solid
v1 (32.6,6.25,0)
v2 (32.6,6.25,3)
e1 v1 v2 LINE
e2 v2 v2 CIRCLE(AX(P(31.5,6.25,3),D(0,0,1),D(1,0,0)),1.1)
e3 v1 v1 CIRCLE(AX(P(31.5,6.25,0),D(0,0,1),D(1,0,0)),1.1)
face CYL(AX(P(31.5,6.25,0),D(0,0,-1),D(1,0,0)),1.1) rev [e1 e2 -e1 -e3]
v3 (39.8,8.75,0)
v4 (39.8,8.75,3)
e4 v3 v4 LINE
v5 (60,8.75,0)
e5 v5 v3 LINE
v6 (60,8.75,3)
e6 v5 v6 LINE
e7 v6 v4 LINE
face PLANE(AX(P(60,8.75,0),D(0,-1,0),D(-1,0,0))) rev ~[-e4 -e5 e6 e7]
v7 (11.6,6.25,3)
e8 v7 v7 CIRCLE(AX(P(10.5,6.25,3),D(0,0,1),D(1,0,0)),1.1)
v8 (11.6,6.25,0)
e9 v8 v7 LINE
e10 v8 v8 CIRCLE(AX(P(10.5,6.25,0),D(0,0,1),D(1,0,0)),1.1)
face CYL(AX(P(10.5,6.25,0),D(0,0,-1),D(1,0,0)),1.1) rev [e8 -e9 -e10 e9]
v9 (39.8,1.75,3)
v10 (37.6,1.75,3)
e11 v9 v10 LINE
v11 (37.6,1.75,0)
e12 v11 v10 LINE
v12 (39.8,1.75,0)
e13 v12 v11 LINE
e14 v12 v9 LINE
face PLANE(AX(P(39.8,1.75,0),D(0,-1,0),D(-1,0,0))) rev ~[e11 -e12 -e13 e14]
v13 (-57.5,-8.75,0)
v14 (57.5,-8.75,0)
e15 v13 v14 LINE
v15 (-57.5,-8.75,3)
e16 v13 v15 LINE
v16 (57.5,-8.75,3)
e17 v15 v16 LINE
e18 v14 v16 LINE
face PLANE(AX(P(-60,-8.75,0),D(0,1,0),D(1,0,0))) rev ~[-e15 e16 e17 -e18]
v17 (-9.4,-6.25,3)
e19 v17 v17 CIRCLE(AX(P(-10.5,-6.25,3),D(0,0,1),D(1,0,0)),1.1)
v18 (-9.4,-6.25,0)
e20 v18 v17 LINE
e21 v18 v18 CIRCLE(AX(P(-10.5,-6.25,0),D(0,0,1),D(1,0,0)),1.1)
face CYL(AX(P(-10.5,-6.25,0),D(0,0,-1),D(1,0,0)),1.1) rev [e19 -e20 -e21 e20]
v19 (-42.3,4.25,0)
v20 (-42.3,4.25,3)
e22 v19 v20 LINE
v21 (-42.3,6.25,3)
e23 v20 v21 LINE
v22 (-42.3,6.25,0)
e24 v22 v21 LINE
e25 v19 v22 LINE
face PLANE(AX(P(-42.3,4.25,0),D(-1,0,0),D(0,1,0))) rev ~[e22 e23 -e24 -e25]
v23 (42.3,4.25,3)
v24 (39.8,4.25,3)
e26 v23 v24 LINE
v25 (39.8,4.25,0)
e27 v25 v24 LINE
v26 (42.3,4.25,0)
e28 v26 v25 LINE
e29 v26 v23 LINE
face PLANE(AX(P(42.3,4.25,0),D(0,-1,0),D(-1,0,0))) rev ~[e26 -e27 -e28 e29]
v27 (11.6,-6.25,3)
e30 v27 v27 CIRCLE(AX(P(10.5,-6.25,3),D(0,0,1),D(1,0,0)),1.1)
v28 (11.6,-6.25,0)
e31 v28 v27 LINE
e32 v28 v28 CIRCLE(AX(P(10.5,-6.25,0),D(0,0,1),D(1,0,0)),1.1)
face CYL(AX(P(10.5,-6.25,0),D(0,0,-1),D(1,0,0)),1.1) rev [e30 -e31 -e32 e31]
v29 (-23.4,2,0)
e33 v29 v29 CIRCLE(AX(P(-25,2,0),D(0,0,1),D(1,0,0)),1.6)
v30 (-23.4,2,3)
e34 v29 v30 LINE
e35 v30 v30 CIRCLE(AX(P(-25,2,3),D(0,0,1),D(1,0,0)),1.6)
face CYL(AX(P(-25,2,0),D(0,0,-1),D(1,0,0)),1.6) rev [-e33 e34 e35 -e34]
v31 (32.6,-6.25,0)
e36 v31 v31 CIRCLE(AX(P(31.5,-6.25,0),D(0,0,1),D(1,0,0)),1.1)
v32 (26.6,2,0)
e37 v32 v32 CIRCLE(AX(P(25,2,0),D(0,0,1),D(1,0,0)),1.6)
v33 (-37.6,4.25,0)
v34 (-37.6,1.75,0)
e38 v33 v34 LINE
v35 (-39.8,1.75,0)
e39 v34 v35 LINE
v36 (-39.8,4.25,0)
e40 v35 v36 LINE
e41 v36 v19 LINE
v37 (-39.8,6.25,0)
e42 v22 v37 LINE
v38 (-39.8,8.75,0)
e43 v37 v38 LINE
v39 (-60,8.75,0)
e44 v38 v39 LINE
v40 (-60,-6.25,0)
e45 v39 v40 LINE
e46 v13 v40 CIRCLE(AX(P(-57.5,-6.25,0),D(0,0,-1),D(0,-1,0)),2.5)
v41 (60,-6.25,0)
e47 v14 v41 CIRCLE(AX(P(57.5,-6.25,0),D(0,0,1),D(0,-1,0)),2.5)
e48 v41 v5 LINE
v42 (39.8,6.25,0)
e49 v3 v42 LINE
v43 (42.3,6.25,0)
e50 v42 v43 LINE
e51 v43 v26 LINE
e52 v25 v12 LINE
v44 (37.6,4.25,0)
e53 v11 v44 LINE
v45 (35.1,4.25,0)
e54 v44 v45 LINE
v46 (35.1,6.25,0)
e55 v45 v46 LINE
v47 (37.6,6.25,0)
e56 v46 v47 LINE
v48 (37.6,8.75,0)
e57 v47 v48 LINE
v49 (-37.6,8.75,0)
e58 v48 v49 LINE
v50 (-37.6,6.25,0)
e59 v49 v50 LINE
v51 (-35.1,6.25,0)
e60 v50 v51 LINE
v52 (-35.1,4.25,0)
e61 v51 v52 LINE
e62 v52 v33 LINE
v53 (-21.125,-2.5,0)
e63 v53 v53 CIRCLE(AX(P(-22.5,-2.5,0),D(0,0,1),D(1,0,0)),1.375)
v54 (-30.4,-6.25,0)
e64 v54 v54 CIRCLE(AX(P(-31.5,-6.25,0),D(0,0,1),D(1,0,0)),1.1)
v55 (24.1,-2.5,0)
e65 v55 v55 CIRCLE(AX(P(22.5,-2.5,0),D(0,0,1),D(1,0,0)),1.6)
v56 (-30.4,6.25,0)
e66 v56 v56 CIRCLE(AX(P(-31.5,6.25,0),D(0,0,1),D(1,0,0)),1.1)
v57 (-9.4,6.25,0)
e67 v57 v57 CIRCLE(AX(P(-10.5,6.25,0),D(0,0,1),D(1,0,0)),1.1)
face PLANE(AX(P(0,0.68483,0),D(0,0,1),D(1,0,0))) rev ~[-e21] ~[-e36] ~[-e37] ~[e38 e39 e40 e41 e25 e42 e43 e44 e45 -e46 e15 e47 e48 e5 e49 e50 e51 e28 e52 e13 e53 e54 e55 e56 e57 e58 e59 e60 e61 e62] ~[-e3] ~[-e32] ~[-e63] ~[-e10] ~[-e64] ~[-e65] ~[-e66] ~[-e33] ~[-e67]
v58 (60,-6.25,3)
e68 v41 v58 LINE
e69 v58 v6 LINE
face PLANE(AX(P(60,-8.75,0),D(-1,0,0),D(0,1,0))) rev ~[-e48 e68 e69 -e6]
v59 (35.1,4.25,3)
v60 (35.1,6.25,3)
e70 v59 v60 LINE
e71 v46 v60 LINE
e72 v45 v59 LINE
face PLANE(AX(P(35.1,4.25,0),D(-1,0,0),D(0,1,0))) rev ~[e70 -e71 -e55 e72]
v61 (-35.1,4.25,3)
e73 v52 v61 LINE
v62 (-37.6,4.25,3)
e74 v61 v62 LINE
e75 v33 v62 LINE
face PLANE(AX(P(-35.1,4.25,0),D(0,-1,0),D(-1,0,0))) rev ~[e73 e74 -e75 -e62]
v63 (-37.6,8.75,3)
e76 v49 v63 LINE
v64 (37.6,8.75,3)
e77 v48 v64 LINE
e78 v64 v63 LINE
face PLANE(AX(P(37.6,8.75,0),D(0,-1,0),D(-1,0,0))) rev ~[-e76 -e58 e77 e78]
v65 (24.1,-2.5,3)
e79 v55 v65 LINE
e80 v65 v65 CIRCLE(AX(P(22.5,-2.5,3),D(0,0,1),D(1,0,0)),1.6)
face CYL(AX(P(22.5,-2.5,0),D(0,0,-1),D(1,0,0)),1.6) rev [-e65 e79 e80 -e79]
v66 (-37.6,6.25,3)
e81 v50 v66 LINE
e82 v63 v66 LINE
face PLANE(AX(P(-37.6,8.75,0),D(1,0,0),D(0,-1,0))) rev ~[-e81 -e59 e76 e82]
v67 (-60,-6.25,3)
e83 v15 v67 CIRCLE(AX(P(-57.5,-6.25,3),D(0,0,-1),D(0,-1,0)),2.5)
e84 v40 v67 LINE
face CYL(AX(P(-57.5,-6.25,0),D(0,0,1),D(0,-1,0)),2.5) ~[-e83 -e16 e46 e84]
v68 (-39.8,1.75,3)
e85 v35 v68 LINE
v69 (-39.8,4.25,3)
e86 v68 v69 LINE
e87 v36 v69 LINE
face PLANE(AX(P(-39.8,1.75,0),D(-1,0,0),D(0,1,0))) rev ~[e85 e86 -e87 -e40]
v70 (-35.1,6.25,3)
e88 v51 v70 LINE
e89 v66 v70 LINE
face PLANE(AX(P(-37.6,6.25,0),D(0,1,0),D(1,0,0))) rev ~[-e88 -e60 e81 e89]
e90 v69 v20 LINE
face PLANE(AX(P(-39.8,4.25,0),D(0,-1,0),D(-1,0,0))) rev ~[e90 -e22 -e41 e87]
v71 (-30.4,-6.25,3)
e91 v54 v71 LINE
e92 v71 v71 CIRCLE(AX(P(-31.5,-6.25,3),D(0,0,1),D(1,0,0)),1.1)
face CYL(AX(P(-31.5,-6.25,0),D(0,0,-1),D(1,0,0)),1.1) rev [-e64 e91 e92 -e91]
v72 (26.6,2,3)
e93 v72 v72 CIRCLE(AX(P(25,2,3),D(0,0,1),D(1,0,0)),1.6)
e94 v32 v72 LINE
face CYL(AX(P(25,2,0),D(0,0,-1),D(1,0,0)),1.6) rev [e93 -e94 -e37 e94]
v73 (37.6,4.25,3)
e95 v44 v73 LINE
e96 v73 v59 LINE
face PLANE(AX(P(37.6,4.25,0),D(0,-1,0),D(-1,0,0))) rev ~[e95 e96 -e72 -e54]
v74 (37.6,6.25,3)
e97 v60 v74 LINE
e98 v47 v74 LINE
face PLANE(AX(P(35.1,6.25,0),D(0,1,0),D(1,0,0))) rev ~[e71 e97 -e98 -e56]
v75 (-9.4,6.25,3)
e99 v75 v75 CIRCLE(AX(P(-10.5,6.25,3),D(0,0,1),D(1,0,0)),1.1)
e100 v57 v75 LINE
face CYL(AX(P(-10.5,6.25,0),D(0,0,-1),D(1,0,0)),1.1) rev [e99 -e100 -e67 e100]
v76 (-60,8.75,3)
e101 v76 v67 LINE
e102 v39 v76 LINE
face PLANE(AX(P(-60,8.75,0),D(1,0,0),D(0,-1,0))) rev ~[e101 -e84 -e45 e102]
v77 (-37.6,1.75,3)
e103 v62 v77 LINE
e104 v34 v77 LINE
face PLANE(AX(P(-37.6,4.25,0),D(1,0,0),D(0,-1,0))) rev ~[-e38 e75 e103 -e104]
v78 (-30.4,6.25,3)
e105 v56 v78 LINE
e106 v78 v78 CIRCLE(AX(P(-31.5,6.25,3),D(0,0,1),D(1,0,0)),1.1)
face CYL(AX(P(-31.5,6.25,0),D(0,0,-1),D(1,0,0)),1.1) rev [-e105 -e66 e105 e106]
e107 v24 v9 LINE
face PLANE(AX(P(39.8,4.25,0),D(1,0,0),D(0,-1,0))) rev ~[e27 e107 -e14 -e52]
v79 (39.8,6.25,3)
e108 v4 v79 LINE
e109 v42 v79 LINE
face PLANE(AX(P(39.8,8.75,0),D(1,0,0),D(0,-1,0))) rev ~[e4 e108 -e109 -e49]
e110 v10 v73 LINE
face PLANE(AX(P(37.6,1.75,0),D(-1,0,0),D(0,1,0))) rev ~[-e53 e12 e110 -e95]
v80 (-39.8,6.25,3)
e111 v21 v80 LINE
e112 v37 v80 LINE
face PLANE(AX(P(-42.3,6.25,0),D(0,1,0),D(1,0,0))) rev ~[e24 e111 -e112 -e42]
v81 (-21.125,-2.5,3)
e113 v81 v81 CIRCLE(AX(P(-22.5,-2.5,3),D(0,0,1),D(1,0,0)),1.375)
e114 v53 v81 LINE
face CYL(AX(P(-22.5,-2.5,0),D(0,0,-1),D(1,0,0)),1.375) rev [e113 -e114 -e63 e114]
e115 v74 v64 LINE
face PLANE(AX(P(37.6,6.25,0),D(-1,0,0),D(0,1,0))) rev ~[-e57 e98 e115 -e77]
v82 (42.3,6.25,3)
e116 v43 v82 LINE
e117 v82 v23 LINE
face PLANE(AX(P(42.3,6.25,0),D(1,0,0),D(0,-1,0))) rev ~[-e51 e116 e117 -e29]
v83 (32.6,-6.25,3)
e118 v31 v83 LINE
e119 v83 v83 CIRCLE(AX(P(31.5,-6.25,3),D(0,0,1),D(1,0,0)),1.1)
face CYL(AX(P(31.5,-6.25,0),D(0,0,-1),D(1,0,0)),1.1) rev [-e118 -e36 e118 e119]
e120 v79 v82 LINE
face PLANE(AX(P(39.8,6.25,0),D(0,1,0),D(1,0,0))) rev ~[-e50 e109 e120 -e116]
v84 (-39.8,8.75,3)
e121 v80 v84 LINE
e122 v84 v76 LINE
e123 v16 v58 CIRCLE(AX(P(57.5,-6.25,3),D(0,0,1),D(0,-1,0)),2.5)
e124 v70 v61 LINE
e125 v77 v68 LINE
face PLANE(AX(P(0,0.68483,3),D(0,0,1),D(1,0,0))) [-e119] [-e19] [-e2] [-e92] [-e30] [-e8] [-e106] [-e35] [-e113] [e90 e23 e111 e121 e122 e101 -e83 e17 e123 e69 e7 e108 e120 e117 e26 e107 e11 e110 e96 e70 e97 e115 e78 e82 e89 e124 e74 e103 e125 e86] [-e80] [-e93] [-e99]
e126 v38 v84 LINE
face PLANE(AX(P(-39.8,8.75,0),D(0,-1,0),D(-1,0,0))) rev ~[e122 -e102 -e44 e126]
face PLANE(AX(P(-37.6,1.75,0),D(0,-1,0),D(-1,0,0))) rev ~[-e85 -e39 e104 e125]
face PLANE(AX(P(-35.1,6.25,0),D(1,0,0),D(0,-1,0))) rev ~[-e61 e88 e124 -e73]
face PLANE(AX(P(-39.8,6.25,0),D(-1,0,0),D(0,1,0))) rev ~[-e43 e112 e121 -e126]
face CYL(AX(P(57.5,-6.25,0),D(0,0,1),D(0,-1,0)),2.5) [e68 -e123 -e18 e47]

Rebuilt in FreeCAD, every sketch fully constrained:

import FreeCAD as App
import Part
import Sketcher
from FreeCAD import Vector
Q = App.Units.Quantity


def edges_at(feature, points):
    """Names of the edges that pass closest to the given points."""
    edges = feature.Shape.Edges
    near = lambda p: min(range(len(edges)), key=lambda i: edges[i].distToShape(Part.Vertex(*p))[0])
    return sorted({f"Edge{near(p) + 1}" for p in points})

doc = App.newDocument("Part")
body = doc.addObject("PartDesign::Body", "Body")

sketch1 = doc.addObject("Sketcher::SketchObject", "Sketch")
body.addObject(sketch1)
sketch1.AttachmentSupport = (doc.XY_Plane, [""])
sketch1.MapMode = "FlatFace"
sketch1.addGeometry([
    Part.LineSegment(Vector(-60, -8.75, 0), Vector(60, -8.75, 0)),
    Part.LineSegment(Vector(60, -8.75, 0), Vector(60, 8.75, 0)),
    Part.LineSegment(Vector(60, 8.75, 0), Vector(39.8, 8.75, 0)),
    Part.LineSegment(Vector(39.8, 8.75, 0), Vector(39.8, 6.25, 0)),
    Part.LineSegment(Vector(39.8, 6.25, 0), Vector(42.3, 6.25, 0)),
    Part.LineSegment(Vector(42.3, 6.25, 0), Vector(42.3, 4.25, 0)),
    Part.LineSegment(Vector(42.3, 4.25, 0), Vector(39.8, 4.25, 0)),
    Part.LineSegment(Vector(39.8, 4.25, 0), Vector(39.8, 1.75, 0)),
    Part.LineSegment(Vector(39.8, 1.75, 0), Vector(37.6, 1.75, 0)),
    Part.LineSegment(Vector(37.6, 1.75, 0), Vector(37.6, 4.25, 0)),
    Part.LineSegment(Vector(37.6, 4.25, 0), Vector(35.1, 4.25, 0)),
    Part.LineSegment(Vector(35.1, 4.25, 0), Vector(35.1, 6.25, 0)),
    Part.LineSegment(Vector(35.1, 6.25, 0), Vector(37.6, 6.25, 0)),
    Part.LineSegment(Vector(37.6, 6.25, 0), Vector(37.6, 8.75, 0)),
    Part.LineSegment(Vector(37.6, 8.75, 0), Vector(-37.6, 8.75, 0)),
    Part.LineSegment(Vector(-37.6, 8.75, 0), Vector(-37.6, 6.25, 0)),
    Part.LineSegment(Vector(-37.6, 6.25, 0), Vector(-35.1, 6.25, 0)),
    Part.LineSegment(Vector(-35.1, 6.25, 0), Vector(-35.1, 4.25, 0)),
    Part.LineSegment(Vector(-35.1, 4.25, 0), Vector(-37.6, 4.25, 0)),
    Part.LineSegment(Vector(-37.6, 4.25, 0), Vector(-37.6, 1.75, 0)),
    Part.LineSegment(Vector(-37.6, 1.75, 0), Vector(-39.8, 1.75, 0)),
    Part.LineSegment(Vector(-39.8, 1.75, 0), Vector(-39.8, 4.25, 0)),
    Part.LineSegment(Vector(-39.8, 4.25, 0), Vector(-42.3, 4.25, 0)),
    Part.LineSegment(Vector(-42.3, 4.25, 0), Vector(-42.3, 6.25, 0)),
    Part.LineSegment(Vector(-42.3, 6.25, 0), Vector(-39.8, 6.25, 0)),
    Part.LineSegment(Vector(-39.8, 6.25, 0), Vector(-39.8, 8.75, 0)),
    Part.LineSegment(Vector(-39.8, 8.75, 0), Vector(-60, 8.75, 0)),
    Part.LineSegment(Vector(-60, 8.75, 0), Vector(-60, -8.75, 0)),
    Part.Circle(Vector(-31.5, -6.25, 0), Vector(0, 0, 1), 1.1),
    Part.Circle(Vector(-10.5, -6.25, 0), Vector(0, 0, 1), 1.1),
    Part.Circle(Vector(-22.5, -2.5, 0), Vector(0, 0, 1), 1.375),
    Part.Circle(Vector(10.5, -6.25, 0), Vector(0, 0, 1), 1.1),
    Part.Circle(Vector(31.5, -6.25, 0), Vector(0, 0, 1), 1.1),
    Part.Circle(Vector(22.5, -2.5, 0), Vector(0, 0, 1), 1.6),
    Part.Circle(Vector(-25, 2, 0), Vector(0, 0, 1), 1.6),
    Part.Circle(Vector(-31.5, 6.25, 0), Vector(0, 0, 1), 1.1),
    Part.Circle(Vector(-10.5, 6.25, 0), Vector(0, 0, 1), 1.1),
    Part.Circle(Vector(25, 2, 0), Vector(0, 0, 1), 1.6),
    Part.Circle(Vector(10.5, 6.25, 0), Vector(0, 0, 1), 1.1),
    Part.Circle(Vector(31.5, 6.25, 0), Vector(0, 0, 1), 1.1),
], False)
sketch1.addConstraint([
    Sketcher.Constraint("Coincident", 0, 2, 1, 1),
    Sketcher.Constraint("Coincident", 1, 2, 2, 1),
    Sketcher.Constraint("Coincident", 2, 2, 3, 1),
    Sketcher.Constraint("Coincident", 3, 2, 4, 1),
    Sketcher.Constraint("Coincident", 4, 2, 5, 1),
    Sketcher.Constraint("Coincident", 5, 2, 6, 1),
    Sketcher.Constraint("Coincident", 6, 2, 7, 1),
    Sketcher.Constraint("Coincident", 7, 2, 8, 1),
    Sketcher.Constraint("Coincident", 8, 2, 9, 1),
    Sketcher.Constraint("Coincident", 9, 2, 10, 1),
    Sketcher.Constraint("Coincident", 10, 2, 11, 1),
    Sketcher.Constraint("Coincident", 11, 2, 12, 1),
    Sketcher.Constraint("Coincident", 12, 2, 13, 1),
    Sketcher.Constraint("Coincident", 13, 2, 14, 1),
    Sketcher.Constraint("Coincident", 14, 2, 15, 1),
    Sketcher.Constraint("Coincident", 15, 2, 16, 1),
    Sketcher.Constraint("Coincident", 16, 2, 17, 1),
    Sketcher.Constraint("Coincident", 17, 2, 18, 1),
    Sketcher.Constraint("Coincident", 18, 2, 19, 1),
    Sketcher.Constraint("Coincident", 19, 2, 20, 1),
    Sketcher.Constraint("Coincident", 20, 2, 21, 1),
    Sketcher.Constraint("Coincident", 21, 2, 22, 1),
    Sketcher.Constraint("Coincident", 22, 2, 23, 1),
    Sketcher.Constraint("Coincident", 23, 2, 24, 1),
    Sketcher.Constraint("Coincident", 24, 2, 25, 1),
    Sketcher.Constraint("Coincident", 25, 2, 26, 1),
    Sketcher.Constraint("Coincident", 26, 2, 27, 1),
    Sketcher.Constraint("Coincident", 27, 2, 0, 1),
    Sketcher.Constraint("Horizontal", 0),
    Sketcher.Constraint("Vertical", 1),
    Sketcher.Constraint("Horizontal", 2),
    Sketcher.Constraint("Vertical", 3),
    Sketcher.Constraint("Horizontal", 4),
    Sketcher.Constraint("Vertical", 5),
    Sketcher.Constraint("Horizontal", 6),
    Sketcher.Constraint("Vertical", 7),
    Sketcher.Constraint("Horizontal", 8),
    Sketcher.Constraint("Vertical", 9),
    Sketcher.Constraint("Horizontal", 10),
    Sketcher.Constraint("Vertical", 11),
    Sketcher.Constraint("Horizontal", 12),
    Sketcher.Constraint("Vertical", 13),
    Sketcher.Constraint("Horizontal", 14),
    Sketcher.Constraint("Vertical", 15),
    Sketcher.Constraint("Horizontal", 16),
    Sketcher.Constraint("Vertical", 17),
    Sketcher.Constraint("Horizontal", 18),
    Sketcher.Constraint("Vertical", 19),
    Sketcher.Constraint("Horizontal", 20),
    Sketcher.Constraint("Vertical", 21),
    Sketcher.Constraint("Horizontal", 22),
    Sketcher.Constraint("Vertical", 23),
    Sketcher.Constraint("Horizontal", 24),
    Sketcher.Constraint("Vertical", 25),
    Sketcher.Constraint("Horizontal", 26),
    Sketcher.Constraint("Vertical", 27),
    Sketcher.Constraint("Equal", 28, 29),
    Sketcher.Constraint("Equal", 29, 31),
    Sketcher.Constraint("Equal", 31, 32),
    Sketcher.Constraint("Equal", 33, 34),
    Sketcher.Constraint("Equal", 32, 35),
    Sketcher.Constraint("Equal", 35, 36),
    Sketcher.Constraint("Equal", 34, 37),
    Sketcher.Constraint("Equal", 36, 38),
    Sketcher.Constraint("Equal", 38, 39),
    Sketcher.Constraint("Symmetric", 32, 3, 35, 3, -1, 1),
    Sketcher.Constraint("Symmetric", 31, 3, 36, 3, -1, 1),
    Sketcher.Constraint("Symmetric", 29, 3, 38, 3, -1, 1),
    Sketcher.Constraint("Symmetric", 28, 3, 39, 3, -1, 1),
    Sketcher.Constraint("Symmetric", 0, 2, 26, 2, -1, 1),
    Sketcher.Constraint("Symmetric", 29, 3, 31, 3, -2),
    Sketcher.Constraint("Symmetric", 28, 3, 32, 3, -2),
    Sketcher.Constraint("Symmetric", 30, 3, 33, 3, -2),
    Sketcher.Constraint("Symmetric", 34, 3, 37, 3, -2),
    Sketcher.Constraint("Symmetric", 12, 2, 15, 2, -2),
    Sketcher.Constraint("Symmetric", 10, 2, 17, 2, -2),
    Sketcher.Constraint("Symmetric", 8, 2, 19, 2, -2),
    Sketcher.Constraint("Symmetric", 6, 2, 21, 2, -2),
    Sketcher.Constraint("Symmetric", 4, 2, 23, 2, -2),
    Sketcher.Constraint("Symmetric", 2, 2, 25, 2, -2),
    Sketcher.Constraint("Horizontal", 28, 3, 29, 3),
    Sketcher.Constraint("Horizontal", 39, 3, 3, 2),
    Sketcher.Constraint("Horizontal", 6, 2, 9, 2),
    Sketcher.Constraint("Horizontal", 4, 2, 11, 2),
    Sketcher.Constraint("Horizontal", 2, 2, 13, 2),
    Sketcher.Constraint("Vertical", 3, 2, 6, 2),
    Sketcher.Constraint("Vertical", 9, 2, 12, 2),
    Sketcher.Constraint("Equal", 6, 10),
    Sketcher.Constraint("Equal", 24, 3),
    Sketcher.Constraint("Equal", 3, 7),
    Sketcher.Constraint("Diameter", 28, Q("2.2 mm")),
    Sketcher.Constraint("Diameter", 33, Q("3.2 mm")),
    Sketcher.Constraint("Diameter", 30, Q("2.75 mm")),
    Sketcher.Constraint("DistanceX", 0, 1, 0, 2, Q("120 mm")),
    Sketcher.Constraint("DistanceY", 5, 2, 5, 1, Q("2 mm")),
    Sketcher.Constraint("DistanceX", 2, 2, 2, 1, Q("20.2 mm")),
    Sketcher.Constraint("DistanceX", 4, 1, 4, 2, Q("2.5 mm")),
    Sketcher.Constraint("DistanceX", 8, 2, 8, 1, Q("2.2 mm")),
    Sketcher.Constraint("DistanceY", 1, 1, 1, 2, Q("17.5 mm")),
    Sketcher.Constraint("DistanceX", 34, 3, -1, 1, Q("25 mm")),
    Sketcher.Constraint("DistanceY", -1, 1, 34, 3, Q("2 mm")),
    Sketcher.Constraint("DistanceX", 28, 3, 29, 3, Q("21 mm")),
    Sketcher.Constraint("DistanceX", 28, 3, 30, 3, Q("9 mm")),
    Sketcher.Constraint("DistanceX", 29, 3, 31, 3, Q("21 mm")),
    Sketcher.Constraint("DistanceY", 30, 3, -1, 1, Q("2.5 mm")),
])
pad1 = doc.addObject("PartDesign::Pad", "Pad")
body.addObject(pad1)
pad1.Profile = sketch1
pad1.Length = 3
doc.recompute()

fillet = doc.addObject("PartDesign::Fillet", "Fillet")
body.addObject(fillet)
fillet.Base = (pad1, edges_at(pad1, [(60, -8.75, 1.5), (-60, -8.75, 1.5)]))
fillet.Radius = 2.5

doc.recompute()
